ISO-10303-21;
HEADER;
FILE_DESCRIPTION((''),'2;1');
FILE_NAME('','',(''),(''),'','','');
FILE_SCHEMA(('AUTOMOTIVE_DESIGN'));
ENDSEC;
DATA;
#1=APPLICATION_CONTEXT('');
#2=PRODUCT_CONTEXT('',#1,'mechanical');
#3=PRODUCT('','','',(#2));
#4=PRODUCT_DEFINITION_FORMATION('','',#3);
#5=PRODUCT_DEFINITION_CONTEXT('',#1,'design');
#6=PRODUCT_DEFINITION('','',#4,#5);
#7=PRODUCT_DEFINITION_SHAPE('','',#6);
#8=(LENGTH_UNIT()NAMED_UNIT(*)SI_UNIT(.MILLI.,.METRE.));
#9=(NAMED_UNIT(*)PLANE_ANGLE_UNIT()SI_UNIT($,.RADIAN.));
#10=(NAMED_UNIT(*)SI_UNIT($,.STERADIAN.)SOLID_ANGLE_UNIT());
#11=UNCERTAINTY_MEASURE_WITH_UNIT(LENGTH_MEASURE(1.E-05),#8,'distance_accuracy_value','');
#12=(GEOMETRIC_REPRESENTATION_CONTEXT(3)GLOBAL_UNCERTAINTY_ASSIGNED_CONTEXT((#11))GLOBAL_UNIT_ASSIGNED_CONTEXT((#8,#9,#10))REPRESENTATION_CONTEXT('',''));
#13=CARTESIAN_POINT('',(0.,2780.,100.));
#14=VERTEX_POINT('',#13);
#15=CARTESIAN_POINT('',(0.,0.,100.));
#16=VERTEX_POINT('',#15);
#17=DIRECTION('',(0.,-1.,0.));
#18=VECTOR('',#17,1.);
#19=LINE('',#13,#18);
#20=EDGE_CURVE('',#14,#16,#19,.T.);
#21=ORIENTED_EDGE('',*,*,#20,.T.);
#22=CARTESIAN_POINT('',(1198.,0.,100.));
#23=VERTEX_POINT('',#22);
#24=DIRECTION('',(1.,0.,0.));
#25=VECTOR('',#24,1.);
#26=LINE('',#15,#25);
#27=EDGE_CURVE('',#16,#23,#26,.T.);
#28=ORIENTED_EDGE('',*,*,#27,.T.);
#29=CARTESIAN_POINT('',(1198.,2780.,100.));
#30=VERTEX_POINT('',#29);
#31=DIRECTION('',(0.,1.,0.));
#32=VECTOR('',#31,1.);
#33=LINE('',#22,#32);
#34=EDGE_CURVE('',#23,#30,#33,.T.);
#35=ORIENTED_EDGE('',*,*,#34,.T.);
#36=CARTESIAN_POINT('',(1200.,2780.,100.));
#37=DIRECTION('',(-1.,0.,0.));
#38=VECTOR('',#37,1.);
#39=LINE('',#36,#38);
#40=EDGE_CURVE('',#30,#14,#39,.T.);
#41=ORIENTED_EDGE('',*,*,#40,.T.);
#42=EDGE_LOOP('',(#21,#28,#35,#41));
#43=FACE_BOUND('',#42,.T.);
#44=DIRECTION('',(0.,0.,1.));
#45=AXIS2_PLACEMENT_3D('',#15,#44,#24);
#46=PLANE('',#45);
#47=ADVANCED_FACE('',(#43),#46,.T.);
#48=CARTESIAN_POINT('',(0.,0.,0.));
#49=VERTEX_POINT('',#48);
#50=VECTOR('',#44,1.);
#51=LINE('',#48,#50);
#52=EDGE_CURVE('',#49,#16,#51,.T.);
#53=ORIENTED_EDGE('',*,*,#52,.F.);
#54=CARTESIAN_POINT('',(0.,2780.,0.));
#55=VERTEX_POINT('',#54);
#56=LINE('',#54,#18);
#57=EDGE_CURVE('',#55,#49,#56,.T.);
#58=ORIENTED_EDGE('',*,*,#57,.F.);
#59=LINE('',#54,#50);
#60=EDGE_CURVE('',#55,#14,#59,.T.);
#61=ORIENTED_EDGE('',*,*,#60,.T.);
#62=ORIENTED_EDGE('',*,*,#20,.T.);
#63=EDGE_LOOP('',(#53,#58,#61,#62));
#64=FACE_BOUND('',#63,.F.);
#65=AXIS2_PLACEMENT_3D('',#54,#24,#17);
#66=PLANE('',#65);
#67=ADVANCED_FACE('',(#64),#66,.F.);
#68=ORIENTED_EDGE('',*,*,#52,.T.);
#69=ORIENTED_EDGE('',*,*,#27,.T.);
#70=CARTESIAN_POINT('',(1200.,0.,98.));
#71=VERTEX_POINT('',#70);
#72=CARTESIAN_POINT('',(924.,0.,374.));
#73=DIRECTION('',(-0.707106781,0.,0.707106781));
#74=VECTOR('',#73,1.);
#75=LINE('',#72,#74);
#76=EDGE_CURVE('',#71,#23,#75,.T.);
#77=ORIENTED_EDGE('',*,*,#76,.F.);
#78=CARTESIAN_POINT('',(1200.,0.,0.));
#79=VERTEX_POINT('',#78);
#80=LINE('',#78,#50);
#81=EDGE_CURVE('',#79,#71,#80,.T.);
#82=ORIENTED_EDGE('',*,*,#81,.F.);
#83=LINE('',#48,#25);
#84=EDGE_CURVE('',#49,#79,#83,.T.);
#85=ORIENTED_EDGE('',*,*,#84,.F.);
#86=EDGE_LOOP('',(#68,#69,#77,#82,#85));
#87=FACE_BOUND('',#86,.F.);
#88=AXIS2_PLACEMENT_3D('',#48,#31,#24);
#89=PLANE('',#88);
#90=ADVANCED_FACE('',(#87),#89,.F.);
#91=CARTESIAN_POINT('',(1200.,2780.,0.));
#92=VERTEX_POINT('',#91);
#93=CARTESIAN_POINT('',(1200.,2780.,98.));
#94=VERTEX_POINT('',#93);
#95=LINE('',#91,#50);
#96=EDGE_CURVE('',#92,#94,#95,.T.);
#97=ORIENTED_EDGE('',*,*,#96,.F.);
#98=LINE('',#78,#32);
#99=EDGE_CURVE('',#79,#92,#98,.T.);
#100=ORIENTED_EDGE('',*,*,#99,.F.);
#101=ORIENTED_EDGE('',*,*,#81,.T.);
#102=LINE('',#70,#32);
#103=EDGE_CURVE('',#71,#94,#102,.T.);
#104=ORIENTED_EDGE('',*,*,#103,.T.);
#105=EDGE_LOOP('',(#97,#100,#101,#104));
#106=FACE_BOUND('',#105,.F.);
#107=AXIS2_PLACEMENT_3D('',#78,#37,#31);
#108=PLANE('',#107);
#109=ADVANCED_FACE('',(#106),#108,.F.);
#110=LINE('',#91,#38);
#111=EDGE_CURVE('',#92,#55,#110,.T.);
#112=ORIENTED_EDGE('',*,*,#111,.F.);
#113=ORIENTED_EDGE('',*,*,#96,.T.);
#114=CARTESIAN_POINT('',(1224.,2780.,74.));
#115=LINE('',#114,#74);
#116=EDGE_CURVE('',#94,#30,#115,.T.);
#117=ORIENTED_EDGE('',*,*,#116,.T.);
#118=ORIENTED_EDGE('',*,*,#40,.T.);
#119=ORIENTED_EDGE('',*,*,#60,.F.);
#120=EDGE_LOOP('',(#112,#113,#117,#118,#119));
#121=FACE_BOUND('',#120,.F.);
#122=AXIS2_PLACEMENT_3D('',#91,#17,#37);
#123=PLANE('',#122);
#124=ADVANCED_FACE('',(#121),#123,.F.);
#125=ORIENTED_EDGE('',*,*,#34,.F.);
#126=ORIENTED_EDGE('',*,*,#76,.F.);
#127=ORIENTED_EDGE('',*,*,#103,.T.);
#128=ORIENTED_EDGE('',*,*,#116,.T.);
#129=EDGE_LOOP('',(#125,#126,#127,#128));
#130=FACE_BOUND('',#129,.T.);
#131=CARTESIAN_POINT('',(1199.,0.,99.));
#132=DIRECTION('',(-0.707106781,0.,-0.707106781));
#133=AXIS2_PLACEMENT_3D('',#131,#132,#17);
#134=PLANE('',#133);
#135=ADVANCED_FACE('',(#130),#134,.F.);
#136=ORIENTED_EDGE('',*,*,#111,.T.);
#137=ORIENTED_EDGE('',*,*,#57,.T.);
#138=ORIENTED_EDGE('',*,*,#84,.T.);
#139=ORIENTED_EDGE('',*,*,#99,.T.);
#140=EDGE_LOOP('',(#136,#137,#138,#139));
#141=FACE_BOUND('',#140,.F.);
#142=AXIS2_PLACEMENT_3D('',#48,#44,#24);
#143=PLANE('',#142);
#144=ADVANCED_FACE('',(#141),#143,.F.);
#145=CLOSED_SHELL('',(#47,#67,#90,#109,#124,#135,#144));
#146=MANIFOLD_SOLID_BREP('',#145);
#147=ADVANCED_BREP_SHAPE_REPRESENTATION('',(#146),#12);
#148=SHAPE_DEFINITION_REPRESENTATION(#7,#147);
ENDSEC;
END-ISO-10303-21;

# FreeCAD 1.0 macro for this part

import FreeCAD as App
import Part
import Sketcher
from FreeCAD import Vector


def edges_at(feature, points):
    """Names of the edges that pass closest to the given points."""
    edges = feature.Shape.Edges
    near = lambda p: min(range(len(edges)), key=lambda i: edges[i].distToShape(Part.Vertex(*p))[0])
    return sorted({f"Edge{near(p) + 1}" for p in points})

doc = App.newDocument("Part")
body = doc.addObject("PartDesign::Body", "Body")

# Sketch on XY plane
sketch1 = doc.addObject("Sketcher::SketchObject", "Sketch")
body.addObject(sketch1)
sketch1.AttachmentSupport = (doc.XY_Plane, [""])
sketch1.MapMode = "FlatFace"
sketch1.addGeometry(Part.LineSegment(Vector(0, 2780, 0), Vector(0, 0, 0)), False)
sketch1.addGeometry(Part.LineSegment(Vector(0, 0, 0), Vector(1200, 0, 0)), False)
sketch1.addGeometry(Part.LineSegment(Vector(1200, 0, 0), Vector(1200, 2780, 0)), False)
sketch1.addGeometry(Part.LineSegment(Vector(1200, 2780, 0), Vector(0, 2780, 0)), False)
sketch1.addConstraint(Sketcher.Constraint("Coincident", 0, 2, 1, 1))
sketch1.addConstraint(Sketcher.Constraint("Coincident", 1, 2, 2, 1))
sketch1.addConstraint(Sketcher.Constraint("Coincident", 2, 2, 3, 1))
sketch1.addConstraint(Sketcher.Constraint("Coincident", 3, 2, 0, 1))
sketch1.addConstraint(Sketcher.Constraint("Vertical", 0))
sketch1.addConstraint(Sketcher.Constraint("Horizontal", 1))
sketch1.addConstraint(Sketcher.Constraint("Vertical", 2))
sketch1.addConstraint(Sketcher.Constraint("Horizontal", 3))
sketch1.addConstraint(Sketcher.Constraint("Coincident", 0, 2, -1, 1))
sketch1.addConstraint(Sketcher.Constraint("DistanceX", 1, 1, 1, 2, 1200.0))
sketch1.addConstraint(Sketcher.Constraint("DistanceY", 0, 2, 0, 1, 2780.0))
pad1 = doc.addObject("PartDesign::Pad", "Pad")
body.addObject(pad1)
pad1.Profile = sketch1
pad1.Length = 100
doc.recompute()

chamfer = doc.addObject("PartDesign::Chamfer", "Chamfer")
body.addObject(chamfer)
chamfer.Base = (pad1, edges_at(pad1, [(1200, 1390, 100)]))
chamfer.Size = 2

doc.recompute()
